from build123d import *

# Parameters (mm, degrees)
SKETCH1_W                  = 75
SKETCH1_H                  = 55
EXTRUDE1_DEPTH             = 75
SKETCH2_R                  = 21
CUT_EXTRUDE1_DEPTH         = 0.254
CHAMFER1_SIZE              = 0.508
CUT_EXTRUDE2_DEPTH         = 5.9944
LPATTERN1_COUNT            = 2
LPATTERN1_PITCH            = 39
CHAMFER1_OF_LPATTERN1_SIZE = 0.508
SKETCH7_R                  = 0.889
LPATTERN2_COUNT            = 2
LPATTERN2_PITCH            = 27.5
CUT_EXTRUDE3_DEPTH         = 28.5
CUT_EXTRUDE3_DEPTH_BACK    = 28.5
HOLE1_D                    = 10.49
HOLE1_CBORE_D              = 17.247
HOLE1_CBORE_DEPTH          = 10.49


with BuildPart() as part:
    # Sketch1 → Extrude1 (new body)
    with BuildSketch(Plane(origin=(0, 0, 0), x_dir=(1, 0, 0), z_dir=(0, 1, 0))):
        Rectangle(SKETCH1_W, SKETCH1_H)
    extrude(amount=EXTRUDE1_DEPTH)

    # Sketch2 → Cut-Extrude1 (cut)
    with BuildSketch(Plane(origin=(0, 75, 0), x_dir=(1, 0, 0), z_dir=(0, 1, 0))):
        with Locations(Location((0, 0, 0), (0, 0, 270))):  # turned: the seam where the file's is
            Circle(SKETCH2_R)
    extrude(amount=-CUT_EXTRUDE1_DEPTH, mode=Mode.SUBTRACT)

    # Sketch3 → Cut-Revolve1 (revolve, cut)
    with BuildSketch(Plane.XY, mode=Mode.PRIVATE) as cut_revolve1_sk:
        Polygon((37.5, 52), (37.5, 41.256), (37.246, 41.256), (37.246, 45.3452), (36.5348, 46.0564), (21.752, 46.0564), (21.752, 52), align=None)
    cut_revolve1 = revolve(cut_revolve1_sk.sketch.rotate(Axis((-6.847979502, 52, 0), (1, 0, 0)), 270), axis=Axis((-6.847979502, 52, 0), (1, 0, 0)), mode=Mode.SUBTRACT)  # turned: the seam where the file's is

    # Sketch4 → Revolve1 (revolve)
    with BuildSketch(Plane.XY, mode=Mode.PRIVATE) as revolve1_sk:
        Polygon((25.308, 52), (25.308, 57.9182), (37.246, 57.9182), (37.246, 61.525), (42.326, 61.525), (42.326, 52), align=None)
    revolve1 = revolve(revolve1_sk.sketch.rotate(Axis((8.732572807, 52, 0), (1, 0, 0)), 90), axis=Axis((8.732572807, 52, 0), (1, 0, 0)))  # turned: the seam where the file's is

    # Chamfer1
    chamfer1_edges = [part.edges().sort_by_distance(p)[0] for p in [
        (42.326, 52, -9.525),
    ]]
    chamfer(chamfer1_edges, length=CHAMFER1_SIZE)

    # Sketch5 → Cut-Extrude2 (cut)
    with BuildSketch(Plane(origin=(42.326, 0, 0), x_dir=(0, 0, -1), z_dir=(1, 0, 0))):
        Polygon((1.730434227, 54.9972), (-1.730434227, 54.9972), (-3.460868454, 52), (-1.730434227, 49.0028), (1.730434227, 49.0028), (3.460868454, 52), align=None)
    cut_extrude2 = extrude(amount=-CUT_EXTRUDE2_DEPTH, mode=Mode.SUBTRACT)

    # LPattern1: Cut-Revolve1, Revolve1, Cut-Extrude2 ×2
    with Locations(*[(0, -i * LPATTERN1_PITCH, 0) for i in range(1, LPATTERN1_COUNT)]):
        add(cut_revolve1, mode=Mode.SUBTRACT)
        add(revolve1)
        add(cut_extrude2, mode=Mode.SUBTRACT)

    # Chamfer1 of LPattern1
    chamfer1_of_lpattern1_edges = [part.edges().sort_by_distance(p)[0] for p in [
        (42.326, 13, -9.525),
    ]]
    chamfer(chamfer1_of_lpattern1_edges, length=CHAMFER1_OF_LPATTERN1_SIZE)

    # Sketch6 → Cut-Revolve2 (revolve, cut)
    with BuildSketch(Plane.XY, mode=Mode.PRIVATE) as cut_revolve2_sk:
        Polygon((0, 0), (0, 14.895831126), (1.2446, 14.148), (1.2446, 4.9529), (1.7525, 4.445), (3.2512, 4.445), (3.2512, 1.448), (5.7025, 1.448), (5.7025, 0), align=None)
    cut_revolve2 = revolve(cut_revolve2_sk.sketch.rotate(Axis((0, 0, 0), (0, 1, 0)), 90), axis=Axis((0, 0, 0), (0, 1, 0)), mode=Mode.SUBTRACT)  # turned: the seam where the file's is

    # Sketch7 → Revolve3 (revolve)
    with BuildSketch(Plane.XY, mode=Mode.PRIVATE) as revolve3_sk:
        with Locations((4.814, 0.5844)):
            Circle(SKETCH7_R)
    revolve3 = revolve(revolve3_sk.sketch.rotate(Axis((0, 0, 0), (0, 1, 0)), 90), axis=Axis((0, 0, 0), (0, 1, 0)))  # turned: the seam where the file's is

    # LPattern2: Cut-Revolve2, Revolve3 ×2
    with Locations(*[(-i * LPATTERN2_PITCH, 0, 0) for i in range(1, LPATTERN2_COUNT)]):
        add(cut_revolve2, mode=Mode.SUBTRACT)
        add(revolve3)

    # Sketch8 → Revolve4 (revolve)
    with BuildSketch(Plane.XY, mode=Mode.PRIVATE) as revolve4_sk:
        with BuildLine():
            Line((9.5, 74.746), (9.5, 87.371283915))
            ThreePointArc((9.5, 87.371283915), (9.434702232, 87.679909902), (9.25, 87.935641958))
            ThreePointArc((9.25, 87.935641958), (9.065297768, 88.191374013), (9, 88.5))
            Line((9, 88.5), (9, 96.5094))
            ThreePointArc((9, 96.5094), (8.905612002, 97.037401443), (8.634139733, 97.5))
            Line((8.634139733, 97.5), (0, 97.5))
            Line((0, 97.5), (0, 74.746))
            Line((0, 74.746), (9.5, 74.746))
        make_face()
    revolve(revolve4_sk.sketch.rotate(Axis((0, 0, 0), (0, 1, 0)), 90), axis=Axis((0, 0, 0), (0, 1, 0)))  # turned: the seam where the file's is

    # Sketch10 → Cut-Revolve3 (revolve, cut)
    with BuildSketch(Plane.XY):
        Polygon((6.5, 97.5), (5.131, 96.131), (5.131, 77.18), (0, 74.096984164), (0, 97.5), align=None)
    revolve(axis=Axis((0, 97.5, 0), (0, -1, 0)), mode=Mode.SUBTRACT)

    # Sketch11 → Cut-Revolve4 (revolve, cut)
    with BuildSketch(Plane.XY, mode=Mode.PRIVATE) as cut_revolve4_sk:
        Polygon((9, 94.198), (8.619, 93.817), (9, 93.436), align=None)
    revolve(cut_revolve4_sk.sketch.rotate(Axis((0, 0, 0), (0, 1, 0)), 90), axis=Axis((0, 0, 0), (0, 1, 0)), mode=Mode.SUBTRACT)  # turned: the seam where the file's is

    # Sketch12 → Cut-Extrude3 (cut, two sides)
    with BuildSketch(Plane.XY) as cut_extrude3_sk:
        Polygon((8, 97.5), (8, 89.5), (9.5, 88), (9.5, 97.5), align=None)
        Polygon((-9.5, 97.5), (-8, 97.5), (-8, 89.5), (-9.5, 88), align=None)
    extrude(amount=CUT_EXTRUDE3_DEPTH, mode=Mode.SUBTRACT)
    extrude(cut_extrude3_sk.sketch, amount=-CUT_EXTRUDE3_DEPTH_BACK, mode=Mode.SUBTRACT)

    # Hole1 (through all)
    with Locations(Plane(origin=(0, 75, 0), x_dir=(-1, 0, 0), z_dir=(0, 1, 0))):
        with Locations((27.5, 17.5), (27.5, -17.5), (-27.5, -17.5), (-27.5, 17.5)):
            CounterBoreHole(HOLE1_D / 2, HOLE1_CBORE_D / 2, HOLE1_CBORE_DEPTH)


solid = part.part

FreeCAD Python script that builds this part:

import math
import FreeCAD as App
import Part
import Sketcher
Q = App.Units.Quantity


def edges_at(feature, points):
    """Names of the edges that pass closest to the given points."""
    edges = feature.Shape.Edges
    near = lambda p: min(range(len(edges)), key=lambda i: edges[i].distToShape(Part.Vertex(*p))[0])
    return sorted({f"Edge{near(p) + 1}" for p in points})

doc = App.newDocument("Part")
params = doc.addObject("Spreadsheet::Sheet", "Params")
for row, (alias, value) in enumerate([
    ("pad1_length", "75 mm"),
    ("pocket1_length", "0.01 in"),
    ("sketch3_width", "0.62 in"),
    ("sketch3_width2", "0.01 in"),
    ("sketch3_width3", "0.582 in"),
    ("sketch3_height", "0.234 in"),
    ("groove_angle", "360 deg"),
    ("sketch4_width", "0.2 in"),
    ("sketch4_width2", "0.67 in"),
    ("sketch4_height", "0.233 in"),
    ("sketch4_height2", "0.375 in"),
    ("revolution_angle", "360 deg"),
    ("chamfer_size", "0.02 in"),
    ("pocket2_length", "0.236 in"),
    ("linearpattern_pitch", "39 mm"),
    ("chamfer2_size", "0.02 in"),
    ("groove2_angle", "360 deg"),
    ("sketch7_diameter", "0.07 in"),
    ("revolution2_angle", "360 deg"),
    ("linearpattern2_pitch", "27.5 mm"),
    ("sketch8_radius", "0.03 in"),
    ("sketch8_radius2", "0.06 in"),
    ("revolution3_angle", "360 deg"),
    ("groove3_angle", "360 deg"),
    ("sketch10_height", "0.03 in"),
    ("groove4_angle", "360 deg"),
    ("hole_diameter", "10.49 mm"),
    ("hole_cbore_diameter", "17.247 mm"),
    ("hole_cbore_depth", "10.49 mm"),
], start=1):
    params.set(f"A{row}", alias)
    params.set(f"B{row}", "=" + value)
    params.setAlias(f"B{row}", alias)

body = doc.addObject("PartDesign::Body", "Body")

sketch1 = body.newObject("Sketcher::SketchObject", "Sketch")
sketch1.AttachmentSupport = (doc.getObject("XZ_Plane"), [""])
sketch1.MapMode = "FlatFace"
sketch1.addGeometry([
    Part.LineSegment(App.Vector(-37.5, -27.5, 0), App.Vector(-37.5, 27.5, 0)),
    Part.LineSegment(App.Vector(-37.5, 27.5, 0), App.Vector(37.5, 27.5, 0)),
    Part.LineSegment(App.Vector(37.5, 27.5, 0), App.Vector(37.5, -27.5, 0)),
    Part.LineSegment(App.Vector(37.5, -27.5, 0), App.Vector(-37.5, -27.5, 0)),
], False)
sketch1.addConstraint([
    Sketcher.Constraint("Coincident", 0, 2, 1, 1),
    Sketcher.Constraint("Coincident", 1, 2, 2, 1),
    Sketcher.Constraint("Coincident", 2, 2, 3, 1),
    Sketcher.Constraint("Coincident", 3, 2, 0, 1),
    Sketcher.Constraint("Vertical", 0),
    Sketcher.Constraint("Horizontal", 1),
    Sketcher.Constraint("Vertical", 2),
    Sketcher.Constraint("Horizontal", 3),
    Sketcher.Constraint("Symmetric", 0, 2, 2, 2, -1, 1),
    Sketcher.Constraint("DistanceX", 1, 1, 1, 2, 75.0),
    Sketcher.Constraint("DistanceY", 0, 1, 0, 2, 55.0),
])
pad1 = body.newObject("PartDesign::Pad", "Pad")
pad1.Profile = sketch1
pad1.setExpression("Length", "Params.pad1_length")
pad1.Reversed = True

sketch2 = body.newObject("Sketcher::SketchObject", "Sketch001")
sketch2.AttachmentSupport = (doc.getObject("XZ_Plane"), [""])
sketch2.MapMode = "FlatFace"
sketch2.AttachmentOffset = App.Placement(App.Vector(0, 0, -75), App.Rotation())
sketch2.addGeometry(Part.Circle(App.Vector(0, 0, 0), App.Vector(0, 0, 1), 21), False)
sketch2.addConstraint([
    Sketcher.Constraint("Coincident", 0, 3, -1, 1),
    Sketcher.Constraint("Diameter", 0, 42.0),
])
pocket1 = body.newObject("PartDesign::Pocket", "Pocket")
pocket1.Profile = sketch2
pocket1.setExpression("Length", "Params.pocket1_length")
pocket1.Reversed = True

sketch3 = body.newObject("Sketcher::SketchObject", "Sketch002")
sketch3.AttachmentSupport = (doc.getObject("XY_Plane"), [""])
sketch3.MapMode = "FlatFace"
sketch3.addGeometry([
    Part.LineSegment(App.Vector(37.5, 41.256, 0), App.Vector(37.5, 52, 0)),
    Part.LineSegment(App.Vector(37.5, 52, 0), App.Vector(21.752, 52, 0)),
    Part.LineSegment(App.Vector(21.752, 52, 0), App.Vector(21.752, 46.0564, 0)),
    Part.LineSegment(App.Vector(21.752, 46.0564, 0), App.Vector(36.5348, 46.0564, 0)),
    Part.LineSegment(App.Vector(36.5348, 46.0564, 0), App.Vector(37.246, 45.3452, 0)),
    Part.LineSegment(App.Vector(37.246, 45.3452, 0), App.Vector(37.246, 41.256, 0)),
    Part.LineSegment(App.Vector(37.246, 41.256, 0), App.Vector(37.5, 41.256, 0)),
], False)
sketch3.addGeometry(Part.LineSegment(App.Vector(21.752, 52, 0), App.Vector(37.5, 52, 0)), True)
sketch3.addConstraint([
    Sketcher.Constraint("Coincident", 0, 2, 1, 1),
    Sketcher.Constraint("Coincident", 1, 2, 2, 1),
    Sketcher.Constraint("Coincident", 2, 2, 3, 1),
    Sketcher.Constraint("Coincident", 3, 2, 4, 1),
    Sketcher.Constraint("Coincident", 4, 2, 5, 1),
    Sketcher.Constraint("Coincident", 5, 2, 6, 1),
    Sketcher.Constraint("Coincident", 6, 2, 0, 1),
    Sketcher.Constraint("Vertical", 0),
    Sketcher.Constraint("Horizontal", 1),
    Sketcher.Constraint("Vertical", 2),
    Sketcher.Constraint("Horizontal", 3),
    Sketcher.Constraint("Vertical", 5),
    Sketcher.Constraint("Horizontal", 6),
    Sketcher.Constraint("Horizontal", 7),
    Sketcher.Constraint("Coincident", 7, 1, 1, 2),
    Sketcher.Constraint("Vertical", 6, 2, 7, 2),
    Sketcher.Constraint("Angle", 4, Q("-45 deg")),
    Sketcher.Constraint("DistanceX", 1, 2, 1, 1, Q("0.62 in")),
    Sketcher.Constraint("DistanceX", 6, 1, 6, 2, Q("0.01 in")),
    Sketcher.Constraint("DistanceX", 3, 1, 3, 2, Q("0.582 in")),
    Sketcher.Constraint("DistanceY", 2, 2, 2, 1, Q("0.234 in")),
    Sketcher.Constraint("DistanceY", 0, 1, 0, 2, 10.744),
    Sketcher.Constraint("DistanceX", -1, 1, 0, 2, 37.5),
    Sketcher.Constraint("DistanceY", -1, 1, 0, 2, 52.0),
])
sketch3.setExpression("Constraints[17]", "Params.sketch3_width")
sketch3.setExpression("Constraints[18]", "Params.sketch3_width2")
sketch3.setExpression("Constraints[19]", "Params.sketch3_width3")
sketch3.setExpression("Constraints[20]", "Params.sketch3_height")
groove = body.newObject("PartDesign::Groove", "Groove")
groove.Profile = sketch3
groove.ReferenceAxis = (sketch3, ["Axis0"])
groove.setExpression("Angle", "Params.groove_angle")

sketch4 = body.newObject("Sketcher::SketchObject", "Sketch003")
sketch4.AttachmentSupport = (doc.getObject("XY_Plane"), [""])
sketch4.MapMode = "FlatFace"
sketch4.addGeometry([
    Part.LineSegment(App.Vector(25.308, 57.9182, 0), App.Vector(25.308, 52, 0)),
    Part.LineSegment(App.Vector(25.308, 52, 0), App.Vector(42.326, 52, 0)),
    Part.LineSegment(App.Vector(42.326, 52, 0), App.Vector(42.326, 61.525, 0)),
    Part.LineSegment(App.Vector(42.326, 61.525, 0), App.Vector(37.246, 61.525, 0)),
    Part.LineSegment(App.Vector(37.246, 61.525, 0), App.Vector(37.246, 57.9182, 0)),
    Part.LineSegment(App.Vector(37.246, 57.9182, 0), App.Vector(25.308, 57.9182, 0)),
], False)
sketch4.addGeometry(Part.LineSegment(App.Vector(25.308, 52, 0), App.Vector(42.326, 52, 0)), True)
sketch4.addConstraint([
    Sketcher.Constraint("Coincident", 0, 2, 1, 1),
    Sketcher.Constraint("Coincident", 1, 2, 2, 1),
    Sketcher.Constraint("Coincident", 2, 2, 3, 1),
    Sketcher.Constraint("Coincident", 3, 2, 4, 1),
    Sketcher.Constraint("Coincident", 4, 2, 5, 1),
    Sketcher.Constraint("Coincident", 5, 2, 0, 1),
    Sketcher.Constraint("Vertical", 0),
    Sketcher.Constraint("Horizontal", 1),
    Sketcher.Constraint("Vertical", 2),
    Sketcher.Constraint("Horizontal", 3),
    Sketcher.Constraint("Vertical", 4),
    Sketcher.Constraint("Horizontal", 5),
    Sketcher.Constraint("Horizontal", 6),
    Sketcher.Constraint("Coincident", 6, 1, 0, 2),
    Sketcher.Constraint("Vertical", 2, 2, 6, 2),
    Sketcher.Constraint("DistanceX", 3, 2, 3, 1, Q("0.2 in")),
    Sketcher.Constraint("DistanceX", 1, 1, 1, 2, Q("0.67 in")),
    Sketcher.Constraint("DistanceY", 0, 2, 0, 1, Q("0.233 in")),
    Sketcher.Constraint("DistanceY", 2, 1, 2, 2, Q("0.375 in")),
    Sketcher.Constraint("DistanceX", -1, 1, 0, 2, 25.308),
    Sketcher.Constraint("DistanceY", -1, 1, 0, 2, 52.0),
])
sketch4.setExpression("Constraints[15]", "Params.sketch4_width")
sketch4.setExpression("Constraints[16]", "Params.sketch4_width2")
sketch4.setExpression("Constraints[17]", "Params.sketch4_height")
sketch4.setExpression("Constraints[18]", "Params.sketch4_height2")
revolution = body.newObject("PartDesign::Revolution", "Revolution")
revolution.Profile = sketch4
revolution.ReferenceAxis = (sketch4, ["Axis0"])
revolution.setExpression("Angle", "Params.revolution_angle")
doc.recompute()

chamfer = body.newObject("PartDesign::Chamfer", "Chamfer")
chamfer.Base = (revolution, edges_at(revolution, [(42.326, 52, -9.525)]))
chamfer.setExpression("Size", "Params.chamfer_size")

sketch5 = body.newObject("Sketcher::SketchObject", "Sketch004")
sketch5.AttachmentSupport = (doc.getObject("YZ_Plane"), [""])
sketch5.MapMode = "FlatFace"
sketch5.AttachmentOffset = App.Placement(App.Vector(0, 0, 42.326), App.Rotation())
sketch5.addGeometry([
    Part.LineSegment(App.Vector(54.9972, -1.730434, 0), App.Vector(54.9972, 1.730434, 0)),
    Part.LineSegment(App.Vector(54.9972, 1.730434, 0), App.Vector(52, 3.460868, 0)),
    Part.LineSegment(App.Vector(52, 3.460868, 0), App.Vector(49.0028, 1.730434, 0)),
    Part.LineSegment(App.Vector(49.0028, 1.730434, 0), App.Vector(49.0028, -1.730434, 0)),
    Part.LineSegment(App.Vector(49.0028, -1.730434, 0), App.Vector(52, -3.460868, 0)),
    Part.LineSegment(App.Vector(52, -3.460868, 0), App.Vector(54.9972, -1.730434, 0)),
], False)
sketch5.addConstraint([
    Sketcher.Constraint("Coincident", 0, 2, 1, 1),
    Sketcher.Constraint("Coincident", 1, 2, 2, 1),
    Sketcher.Constraint("Coincident", 2, 2, 3, 1),
    Sketcher.Constraint("Coincident", 3, 2, 4, 1),
    Sketcher.Constraint("Coincident", 4, 2, 5, 1),
    Sketcher.Constraint("Coincident", 5, 2, 0, 1),
    Sketcher.Constraint("Vertical", 0),
    Sketcher.Constraint("Vertical", 3),
    Sketcher.Constraint("Symmetric", 1, 2, 4, 2, -1),
    Sketcher.Constraint("Parallel", 1, 4),
    Sketcher.Constraint("Parallel", 2, 5),
    Sketcher.Constraint("Horizontal", 0, 2, 2, 2),
    Sketcher.Constraint("Horizontal", 3, 2, 5, 2),
    Sketcher.Constraint("Angle", 1, Q("150 deg")),
    Sketcher.Constraint("DistanceX", 1, 2, 0, 2, Q("0.118 in")),
    Sketcher.Constraint("DistanceY", 0, 1, 0, 2, 3.460868),
    Sketcher.Constraint("DistanceX", -1, 1, 0, 2, 54.9972),
])
pocket2 = body.newObject("PartDesign::Pocket", "Pocket001")
pocket2.Profile = sketch5
pocket2.setExpression("Length", "Params.pocket2_length")
doc.recompute()

linearpattern = body.newObject("PartDesign::LinearPattern", "LinearPattern")
linearpattern.Originals = [groove, revolution, pocket2]
linearpattern.Direction = (doc.getObject("Y_Axis"), [""])
linearpattern.Mode = "offset"
linearpattern.setExpression("Offset", "Params.linearpattern_pitch")
linearpattern.Occurrences = 2
linearpattern.Reversed = True
body.Tip = linearpattern
doc.recompute()

chamfer2 = body.newObject("PartDesign::Chamfer", "Chamfer001")
chamfer2.Base = (linearpattern, edges_at(linearpattern, [(42.326, 13, -9.525)]))
chamfer2.setExpression("Size", "Params.chamfer2_size")

sketch6 = body.newObject("Sketcher::SketchObject", "Sketch005")
sketch6.AttachmentSupport = (doc.getObject("XY_Plane"), [""])
sketch6.MapMode = "FlatFace"
sketch6.addGeometry([
    Part.LineSegment(App.Vector(0, 14.895831, 0), App.Vector(0, 0, 0)),
    Part.LineSegment(App.Vector(0, 0, 0), App.Vector(5.7025, 0, 0)),
    Part.LineSegment(App.Vector(5.7025, 0, 0), App.Vector(5.7025, 1.448, 0)),
    Part.LineSegment(App.Vector(5.7025, 1.448, 0), App.Vector(3.2512, 1.448, 0)),
    Part.LineSegment(App.Vector(3.2512, 1.448, 0), App.Vector(3.2512, 4.445, 0)),
    Part.LineSegment(App.Vector(3.2512, 4.445, 0), App.Vector(1.7525, 4.445, 0)),
    Part.LineSegment(App.Vector(1.7525, 4.445, 0), App.Vector(1.2446, 4.9529, 0)),
    Part.LineSegment(App.Vector(1.2446, 4.9529, 0), App.Vector(1.2446, 14.148, 0)),
    Part.LineSegment(App.Vector(1.2446, 14.148, 0), App.Vector(0, 14.895831, 0)),
], False)
sketch6.addConstraint([
    Sketcher.Constraint("Coincident", 0, 2, 1, 1),
    Sketcher.Constraint("Coincident", 1, 2, 2, 1),
    Sketcher.Constraint("Coincident", 2, 2, 3, 1),
    Sketcher.Constraint("Coincident", 3, 2, 4, 1),
    Sketcher.Constraint("Coincident", 4, 2, 5, 1),
    Sketcher.Constraint("Coincident", 5, 2, 6, 1),
    Sketcher.Constraint("Coincident", 6, 2, 7, 1),
    Sketcher.Constraint("Coincident", 7, 2, 8, 1),
    Sketcher.Constraint("Coincident", 8, 2, 0, 1),
    Sketcher.Constraint("Vertical", 0),
    Sketcher.Constraint("Horizontal", 1),
    Sketcher.Constraint("Vertical", 2),
    Sketcher.Constraint("Horizontal", 3),
    Sketcher.Constraint("Vertical", 4),
    Sketcher.Constraint("Horizontal", 5),
    Sketcher.Constraint("Vertical", 7),
    Sketcher.Constraint("Coincident", 0, 2, -1, 1),
    Sketcher.Constraint("Angle", 6, Q("135 deg")),
    Sketcher.Constraint("Angle", 8, Q("149 deg")),
    Sketcher.Constraint("DistanceY", 3, 2, 7, 2, Q("0.5 in")),
    Sketcher.Constraint("DistanceX", -1, 1, 3, 2, Q("0.128 in")),
    Sketcher.Constraint("DistanceY", -1, 1, 4, 2, Q("0.175 in")),
    Sketcher.Constraint("DistanceX", -1, 1, 6, 2, Q("0.049 in")),
    Sketcher.Constraint("DistanceX", 1, 1, 1, 2, 5.7025),
    Sketcher.Constraint("DistanceX", 5, 2, 5, 1, 1.4987),
    Sketcher.Constraint("DistanceY", 2, 1, 2, 2, 1.448),
])
groove2 = body.newObject("PartDesign::Groove", "Groove001")
groove2.Profile = sketch6
groove2.ReferenceAxis = (sketch6, ["V_Axis"])
groove2.setExpression("Angle", "Params.groove2_angle")

sketch7 = body.newObject("Sketcher::SketchObject", "Sketch006")
sketch7.AttachmentSupport = (doc.getObject("XY_Plane"), [""])
sketch7.MapMode = "FlatFace"
sketch7.addGeometry(Part.Circle(App.Vector(4.814, 0.5844, 0), App.Vector(0, 0, 1), 0.889), False)
sketch7.addConstraint([
    Sketcher.Constraint("Diameter", 0, Q("0.07 in")),
    Sketcher.Constraint("DistanceX", -1, 1, 0, 3, 4.814),
    Sketcher.Constraint("DistanceY", -1, 1, 0, 3, 0.5844),
])
sketch7.setExpression("Constraints[0]", "Params.sketch7_diameter")
revolution2 = body.newObject("PartDesign::Revolution", "Revolution001")
revolution2.Profile = sketch7
revolution2.ReferenceAxis = (sketch7, ["V_Axis"])
revolution2.setExpression("Angle", "Params.revolution2_angle")
doc.recompute()

linearpattern2 = body.newObject("PartDesign::LinearPattern", "LinearPattern001")
linearpattern2.Originals = [groove2, revolution2]
linearpattern2.Direction = (doc.getObject("X_Axis"), [""])
linearpattern2.Mode = "offset"
linearpattern2.setExpression("Offset", "Params.linearpattern2_pitch")
linearpattern2.Occurrences = 2
linearpattern2.Reversed = True
body.Tip = linearpattern2

sketch8 = body.newObject("Sketcher::SketchObject", "Sketch007")
sketch8.AttachmentSupport = (doc.getObject("XY_Plane"), [""])
sketch8.MapMode = "FlatFace"
sketch8.addGeometry([
    Part.LineSegment(App.Vector(9.5, 74.746, 0), App.Vector(9.5, 87.371284, 0)),
    Part.ArcOfCircle(Part.Circle(App.Vector(8.738, 87.371284, 0), App.Vector(0, 0, 1), 0.762), math.radians(0), math.radians(47.784884)),
    Part.ArcOfCircle(Part.Circle(App.Vector(9.762, 88.5, 0), App.Vector(0, 0, 1), 0.762), math.radians(180), math.radians(227.784884)),
    Part.LineSegment(App.Vector(9, 88.5, 0), App.Vector(9, 96.5094, 0)),
    Part.ArcOfCircle(Part.Circle(App.Vector(7.476, 96.5094, 0), App.Vector(0, 0, 1), 1.524), math.radians(0), math.radians(40.541602)),
    Part.LineSegment(App.Vector(8.63414, 97.5, 0), App.Vector(0, 97.5, 0)),
    Part.LineSegment(App.Vector(0, 97.5, 0), App.Vector(0, 74.746, 0)),
    Part.LineSegment(App.Vector(0, 74.746, 0), App.Vector(9.5, 74.746, 0)),
], False)
sketch8.addConstraint([
    Sketcher.Constraint("Tangent", 0, 2, 1, 1),
    Sketcher.Constraint("Tangent", 1, 2, 2, 2),
    Sketcher.Constraint("Tangent", 2, 1, 3, 1),
    Sketcher.Constraint("Tangent", 3, 2, 4, 1),
    Sketcher.Constraint("Coincident", 4, 2, 5, 1),
    Sketcher.Constraint("Coincident", 5, 2, 6, 1),
    Sketcher.Constraint("Coincident", 6, 2, 7, 1),
    Sketcher.Constraint("Coincident", 7, 2, 0, 1),
    Sketcher.Constraint("Vertical", 0),
    Sketcher.Constraint("Vertical", 3),
    Sketcher.Constraint("Horizontal", 5),
    Sketcher.Constraint("Vertical", 6),
    Sketcher.Constraint("Horizontal", 7),
    Sketcher.Constraint("Equal", 1, 2),
    Sketcher.Constraint("PointOnObject", 5, 2, -2),
    Sketcher.Constraint("Radius", 1, Q("0.03 in")),
    Sketcher.Constraint("Radius", 4, Q("0.06 in")),
    Sketcher.Constraint("DistanceY", 3, 2, 4, 2, Q("0.039 in")),
    Sketcher.Constraint("DistanceX", 7, 1, 7, 2, 9.5),
    Sketcher.Constraint("DistanceY", 3, 1, 3, 2, 8.0094),
    Sketcher.Constraint("DistanceY", 6, 2, 6, 1, 22.754),
    Sketcher.Constraint("DistanceX", 5, 2, 5, 1, 8.63414),
    Sketcher.Constraint("DistanceY", -1, 1, 2, 3, 88.5),
])
sketch8.setExpression("Constraints[15]", "Params.sketch8_radius")
sketch8.setExpression("Constraints[16]", "Params.sketch8_radius2")
revolution3 = body.newObject("PartDesign::Revolution", "Revolution002")
revolution3.Profile = sketch8
revolution3.ReferenceAxis = (sketch8, ["V_Axis"])
revolution3.setExpression("Angle", "Params.revolution3_angle")

sketch9 = body.newObject("Sketcher::SketchObject", "Sketch008")
sketch9.AttachmentSupport = (doc.getObject("XY_Plane"), [""])
sketch9.MapMode = "FlatFace"
sketch9.addGeometry([
    Part.LineSegment(App.Vector(5.131, 96.131, 0), App.Vector(6.5, 97.5, 0)),
    Part.LineSegment(App.Vector(6.5, 97.5, 0), App.Vector(0, 97.5, 0)),
    Part.LineSegment(App.Vector(0, 97.5, 0), App.Vector(0, 74.096984, 0)),
    Part.LineSegment(App.Vector(0, 74.096984, 0), App.Vector(5.131, 77.18, 0)),
    Part.LineSegment(App.Vector(5.131, 77.18, 0), App.Vector(5.131, 96.131, 0)),
], False)
sketch9.addConstraint([
    Sketcher.Constraint("Coincident", 0, 2, 1, 1),
    Sketcher.Constraint("Coincident", 1, 2, 2, 1),
    Sketcher.Constraint("Coincident", 2, 2, 3, 1),
    Sketcher.Constraint("Coincident", 3, 2, 4, 1),
    Sketcher.Constraint("Coincident", 4, 2, 0, 1),
    Sketcher.Constraint("Horizontal", 1),
    Sketcher.Constraint("Vertical", 2),
    Sketcher.Constraint("Vertical", 4),
    Sketcher.Constraint("PointOnObject", 1, 2, -2),
    Sketcher.Constraint("Angle", 0, Q("45 deg")),
    Sketcher.Constraint("Angle", 3, Q("31 deg")),
    Sketcher.Constraint("DistanceY", 3, 2, 0, 2, Q("0.8 in")),
    Sketcher.Constraint("DistanceX", 1, 2, 1, 1, 6.5),
    Sketcher.Constraint("DistanceY", 4, 1, 4, 2, 18.951),
    Sketcher.Constraint("DistanceY", -1, 1, 0, 2, 97.5),
])
groove3 = body.newObject("PartDesign::Groove", "Groove002")
groove3.Profile = sketch9
groove3.ReferenceAxis = (sketch9, ["V_Axis"])
groove3.setExpression("Angle", "Params.groove3_angle")

sketch10 = body.newObject("Sketcher::SketchObject", "Sketch009")
sketch10.AttachmentSupport = (doc.getObject("XY_Plane"), [""])
sketch10.MapMode = "FlatFace"
sketch10.addGeometry([
    Part.LineSegment(App.Vector(9, 94.198, 0), App.Vector(8.619, 93.817, 0)),
    Part.LineSegment(App.Vector(8.619, 93.817, 0), App.Vector(9, 93.436, 0)),
    Part.LineSegment(App.Vector(9, 93.436, 0), App.Vector(9, 94.198, 0)),
], False)
sketch10.addConstraint([
    Sketcher.Constraint("Coincident", 0, 2, 1, 1),
    Sketcher.Constraint("Coincident", 1, 2, 2, 1),
    Sketcher.Constraint("Coincident", 2, 2, 0, 1),
    Sketcher.Constraint("Vertical", 2),
    Sketcher.Constraint("Perpendicular", 0, 1),
    Sketcher.Constraint("Equal", 0, 1),
    Sketcher.Constraint("DistanceY", 2, 1, 2, 2, Q("0.03 in")),
    Sketcher.Constraint("DistanceX", -1, 1, 0, 2, 8.619),
    Sketcher.Constraint("DistanceY", -1, 1, 0, 2, 93.817),
])
sketch10.setExpression("Constraints[6]", "Params.sketch10_height")
groove4 = body.newObject("PartDesign::Groove", "Groove003")
groove4.Profile = sketch10
groove4.ReferenceAxis = (sketch10, ["V_Axis"])
groove4.setExpression("Angle", "Params.groove4_angle")

sketch11 = body.newObject("Sketcher::SketchObject", "Sketch010")
sketch11.AttachmentSupport = (doc.getObject("XY_Plane"), [""])
sketch11.MapMode = "FlatFace"
sketch11.addGeometry([
    Part.LineSegment(App.Vector(8, 97.5, 0), App.Vector(8, 89.5, 0)),
    Part.LineSegment(App.Vector(8, 89.5, 0), App.Vector(9.5, 88, 0)),
    Part.LineSegment(App.Vector(9.5, 88, 0), App.Vector(9.5, 97.5, 0)),
    Part.LineSegment(App.Vector(9.5, 97.5, 0), App.Vector(8, 97.5, 0)),
    Part.LineSegment(App.Vector(-8, 97.5, 0), App.Vector(-9.5, 97.5, 0)),
    Part.LineSegment(App.Vector(-9.5, 97.5, 0), App.Vector(-9.5, 88, 0)),
    Part.LineSegment(App.Vector(-9.5, 88, 0), App.Vector(-8, 89.5, 0)),
    Part.LineSegment(App.Vector(-8, 89.5, 0), App.Vector(-8, 97.5, 0)),
], False)
sketch11.addConstraint([
    Sketcher.Constraint("Coincident", 0, 2, 1, 1),
    Sketcher.Constraint("Coincident", 1, 2, 2, 1),
    Sketcher.Constraint("Coincident", 2, 2, 3, 1),
    Sketcher.Constraint("Coincident", 3, 2, 0, 1),
    Sketcher.Constraint("Coincident", 4, 2, 5, 1),
    Sketcher.Constraint("Coincident", 5, 2, 6, 1),
    Sketcher.Constraint("Coincident", 6, 2, 7, 1),
    Sketcher.Constraint("Coincident", 7, 2, 4, 1),
    Sketcher.Constraint("Vertical", 0),
    Sketcher.Constraint("Vertical", 2),
    Sketcher.Constraint("Horizontal", 3),
    Sketcher.Constraint("Horizontal", 4),
    Sketcher.Constraint("Vertical", 5),
    Sketcher.Constraint("Vertical", 7),
    Sketcher.Constraint("Symmetric", 2, 2, 4, 2, -2),
    Sketcher.Constraint("Symmetric", 0, 2, 6, 2, -2),
    Sketcher.Constraint("Perpendicular", 1, 6),
    Sketcher.Constraint("Horizontal", 1, 2, 5, 2),
    Sketcher.Constraint("DistanceX", 3, 2, 3, 1, 1.5),
    Sketcher.Constraint("DistanceY", 0, 2, 0, 1, 8.0),
    Sketcher.Constraint("DistanceX", -1, 1, 0, 2, 8.0),
    Sketcher.Constraint("DistanceY", -1, 1, 0, 2, 89.5),
])
pocket3 = body.newObject("PartDesign::Pocket", "Pocket002")
pocket3.Profile = sketch11
pocket3.Type = "ThroughAll"
pocket3.Midplane = True

sketch12 = body.newObject("Sketcher::SketchObject", "Sketch011")
sketch12.AttachmentSupport = (doc.getObject("XZ_Plane"), [""])
sketch12.MapMode = "FlatFace"
sketch12.AttachmentOffset = App.Placement(App.Vector(0, 0, -75), App.Rotation())
sketch12.addGeometry([
    Part.Circle(App.Vector(-27.5, 17.5, 0), App.Vector(0, 0, 1), 5.245),
    Part.Circle(App.Vector(-27.5, -17.5, 0), App.Vector(0, 0, 1), 5.245),
    Part.Circle(App.Vector(27.5, -17.5, 0), App.Vector(0, 0, 1), 5.245),
    Part.Circle(App.Vector(27.5, 17.5, 0), App.Vector(0, 0, 1), 5.245),
], False)
sketch12.addConstraint([
    Sketcher.Constraint("Equal", 0, 1),
    Sketcher.Constraint("Equal", 1, 2),
    Sketcher.Constraint("Equal", 2, 3),
    Sketcher.Constraint("Symmetric", 0, 3, 2, 3, -1, 1),
    Sketcher.Constraint("Symmetric", 1, 3, 3, 3, -1, 1),
    Sketcher.Constraint("Symmetric", 1, 3, 2, 3, -2),
    Sketcher.Constraint("Diameter", 0, 10.49),
    Sketcher.Constraint("DistanceX", 0, 3, -1, 1, 27.5),
    Sketcher.Constraint("DistanceY", -1, 1, 0, 3, 17.5),
])
doc.recompute()
hole = body.newObject("PartDesign::Hole", "Hole")
hole.Profile = sketch12
hole.ThreadType = "None"
hole.setExpression("Diameter", "Params.hole_diameter")
hole.DepthType = "ThroughAll"
hole.HoleCutType = "Counterbore"
hole.setExpression("HoleCutDiameter", "Params.hole_cbore_diameter")
hole.setExpression("HoleCutDepth", "Params.hole_cbore_depth")
hole.Reversed = True

doc.recompute()
